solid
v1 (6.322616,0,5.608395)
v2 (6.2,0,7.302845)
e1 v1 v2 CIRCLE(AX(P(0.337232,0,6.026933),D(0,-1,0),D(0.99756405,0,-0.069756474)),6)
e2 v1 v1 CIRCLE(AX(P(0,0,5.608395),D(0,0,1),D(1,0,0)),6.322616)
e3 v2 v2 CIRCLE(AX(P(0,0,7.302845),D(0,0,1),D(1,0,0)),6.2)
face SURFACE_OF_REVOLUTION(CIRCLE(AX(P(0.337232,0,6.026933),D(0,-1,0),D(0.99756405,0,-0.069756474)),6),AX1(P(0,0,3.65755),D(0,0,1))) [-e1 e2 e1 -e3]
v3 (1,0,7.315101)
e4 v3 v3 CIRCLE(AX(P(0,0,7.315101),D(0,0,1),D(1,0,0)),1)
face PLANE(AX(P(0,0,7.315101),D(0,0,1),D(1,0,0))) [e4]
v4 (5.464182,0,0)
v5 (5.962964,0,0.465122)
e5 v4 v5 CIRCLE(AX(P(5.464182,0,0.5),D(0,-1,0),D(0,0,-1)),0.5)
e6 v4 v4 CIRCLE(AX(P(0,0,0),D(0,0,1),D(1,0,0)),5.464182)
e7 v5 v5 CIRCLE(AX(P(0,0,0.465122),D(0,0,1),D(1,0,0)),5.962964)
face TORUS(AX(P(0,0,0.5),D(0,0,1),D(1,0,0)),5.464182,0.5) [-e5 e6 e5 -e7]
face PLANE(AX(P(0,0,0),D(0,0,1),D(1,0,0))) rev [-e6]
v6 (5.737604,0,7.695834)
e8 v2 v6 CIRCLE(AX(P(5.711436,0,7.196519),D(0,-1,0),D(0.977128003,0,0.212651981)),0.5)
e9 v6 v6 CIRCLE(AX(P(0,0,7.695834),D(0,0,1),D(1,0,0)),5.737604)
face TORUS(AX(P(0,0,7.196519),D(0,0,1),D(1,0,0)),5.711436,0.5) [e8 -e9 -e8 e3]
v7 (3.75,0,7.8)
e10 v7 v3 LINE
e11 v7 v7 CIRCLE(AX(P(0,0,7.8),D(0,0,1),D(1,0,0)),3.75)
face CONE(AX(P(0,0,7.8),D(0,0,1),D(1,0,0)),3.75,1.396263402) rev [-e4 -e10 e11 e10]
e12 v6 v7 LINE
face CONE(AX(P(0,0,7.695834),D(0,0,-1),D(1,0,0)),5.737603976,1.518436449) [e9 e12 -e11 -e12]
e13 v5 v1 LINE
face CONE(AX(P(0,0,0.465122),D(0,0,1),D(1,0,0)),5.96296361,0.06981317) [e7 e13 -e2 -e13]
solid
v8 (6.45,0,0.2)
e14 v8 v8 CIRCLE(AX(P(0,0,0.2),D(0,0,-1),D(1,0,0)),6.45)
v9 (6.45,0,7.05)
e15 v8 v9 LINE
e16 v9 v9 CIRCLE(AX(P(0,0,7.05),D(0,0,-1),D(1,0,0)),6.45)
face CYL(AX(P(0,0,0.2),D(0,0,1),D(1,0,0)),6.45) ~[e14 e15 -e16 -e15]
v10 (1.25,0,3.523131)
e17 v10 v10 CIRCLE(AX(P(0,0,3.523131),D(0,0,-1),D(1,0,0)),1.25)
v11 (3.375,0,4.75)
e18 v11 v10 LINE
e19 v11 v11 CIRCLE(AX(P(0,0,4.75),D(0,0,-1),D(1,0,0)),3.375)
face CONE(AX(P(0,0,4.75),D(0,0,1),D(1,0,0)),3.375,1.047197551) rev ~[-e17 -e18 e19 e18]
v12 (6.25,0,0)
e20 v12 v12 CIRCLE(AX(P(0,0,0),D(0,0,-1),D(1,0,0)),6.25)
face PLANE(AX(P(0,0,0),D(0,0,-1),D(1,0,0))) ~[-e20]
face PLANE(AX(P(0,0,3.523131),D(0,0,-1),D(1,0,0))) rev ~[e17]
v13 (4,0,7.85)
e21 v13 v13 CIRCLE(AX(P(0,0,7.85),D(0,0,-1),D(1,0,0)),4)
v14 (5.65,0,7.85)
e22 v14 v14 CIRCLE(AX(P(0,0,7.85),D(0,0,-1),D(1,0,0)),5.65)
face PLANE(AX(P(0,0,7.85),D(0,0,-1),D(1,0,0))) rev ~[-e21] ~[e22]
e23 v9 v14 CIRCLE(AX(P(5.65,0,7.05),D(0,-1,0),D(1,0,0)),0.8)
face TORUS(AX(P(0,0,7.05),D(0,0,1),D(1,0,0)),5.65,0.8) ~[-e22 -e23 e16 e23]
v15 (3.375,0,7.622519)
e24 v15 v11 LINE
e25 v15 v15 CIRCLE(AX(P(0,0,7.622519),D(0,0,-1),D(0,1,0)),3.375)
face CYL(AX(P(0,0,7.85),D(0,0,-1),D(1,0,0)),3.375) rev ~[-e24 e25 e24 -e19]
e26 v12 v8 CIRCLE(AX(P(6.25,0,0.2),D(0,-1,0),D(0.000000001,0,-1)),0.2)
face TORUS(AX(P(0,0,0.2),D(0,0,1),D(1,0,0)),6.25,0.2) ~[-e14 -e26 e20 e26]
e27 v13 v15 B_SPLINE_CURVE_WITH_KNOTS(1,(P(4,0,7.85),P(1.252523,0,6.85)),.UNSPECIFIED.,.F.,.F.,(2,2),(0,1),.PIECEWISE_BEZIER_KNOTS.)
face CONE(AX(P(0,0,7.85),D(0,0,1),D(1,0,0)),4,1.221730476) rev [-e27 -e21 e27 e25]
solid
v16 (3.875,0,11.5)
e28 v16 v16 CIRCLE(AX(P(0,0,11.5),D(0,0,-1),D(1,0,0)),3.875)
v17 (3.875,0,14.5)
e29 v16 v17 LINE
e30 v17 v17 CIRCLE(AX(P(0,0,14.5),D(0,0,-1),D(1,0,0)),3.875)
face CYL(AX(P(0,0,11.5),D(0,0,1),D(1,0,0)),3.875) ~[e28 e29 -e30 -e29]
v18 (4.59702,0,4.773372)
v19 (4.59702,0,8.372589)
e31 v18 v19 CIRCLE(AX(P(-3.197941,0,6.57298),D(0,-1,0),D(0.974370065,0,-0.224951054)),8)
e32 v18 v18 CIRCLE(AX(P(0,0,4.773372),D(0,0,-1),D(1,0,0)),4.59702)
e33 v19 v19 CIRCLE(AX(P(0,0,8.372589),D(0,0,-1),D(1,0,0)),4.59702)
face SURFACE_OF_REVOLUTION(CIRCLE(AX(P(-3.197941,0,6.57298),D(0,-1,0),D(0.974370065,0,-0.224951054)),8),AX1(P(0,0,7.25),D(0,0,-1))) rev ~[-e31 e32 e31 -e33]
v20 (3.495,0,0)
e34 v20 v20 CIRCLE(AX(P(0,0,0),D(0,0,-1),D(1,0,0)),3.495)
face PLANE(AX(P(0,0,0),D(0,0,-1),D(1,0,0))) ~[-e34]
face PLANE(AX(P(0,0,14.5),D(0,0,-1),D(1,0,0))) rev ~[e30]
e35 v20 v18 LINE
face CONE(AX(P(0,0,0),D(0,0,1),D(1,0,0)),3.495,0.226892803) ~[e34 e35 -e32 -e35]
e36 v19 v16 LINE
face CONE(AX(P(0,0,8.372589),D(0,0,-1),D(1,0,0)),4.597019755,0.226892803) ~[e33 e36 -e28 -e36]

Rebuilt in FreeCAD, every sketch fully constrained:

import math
import FreeCAD as App
import Part
import Sketcher
Q = App.Units.Quantity

doc = App.newDocument("Part")
body = doc.addObject("PartDesign::Body", "Body")

sketch1 = body.newObject("Sketcher::SketchObject", "Sketch")
sketch1.AttachmentSupport = (doc.getObject("XZ_Plane"), [""])
sketch1.MapMode = "FlatFace"
sketch1.addGeometry(Part.LineSegment(App.Vector(5.65, 7.85, 0), App.Vector(3.375, 7.85, 0)), False)
sketch1.addGeometry(Part.LineSegment(App.Vector(3.375, 7.85, 0), App.Vector(3.375, 4.75, 0)), False)
sketch1.addGeometry(Part.LineSegment(App.Vector(3.375, 4.75, 0), App.Vector(1.25, 3.523131, 0)), False)
sketch1.addGeometry(Part.LineSegment(App.Vector(1.25, 3.523131, 0), App.Vector(0, 3.523131, 0)), False)
sketch1.addGeometry(Part.LineSegment(App.Vector(0, 3.523131, 0), App.Vector(0, 0, 0)), False)
sketch1.addGeometry(Part.LineSegment(App.Vector(0, 0, 0), App.Vector(6.25, 0, 0)), False)
sketch1.addGeometry(Part.ArcOfCircle(Part.Circle(App.Vector(6.25, 0.2, 0), App.Vector(0, 0, 1), 0.2), math.radians(-90), math.radians(0)), False)
sketch1.addGeometry(Part.LineSegment(App.Vector(6.45, 0.2, 0), App.Vector(6.45, 7.05, 0)), False)
sketch1.addGeometry(Part.ArcOfCircle(Part.Circle(App.Vector(5.65, 7.05, 0), App.Vector(0, 0, 1), 0.8), math.radians(0), math.radians(90)), False)
sketch1.addConstraint(Sketcher.Constraint("Coincident", 0, 2, 1, 1))
sketch1.addConstraint(Sketcher.Constraint("Coincident", 1, 2, 2, 1))
sketch1.addConstraint(Sketcher.Constraint("Coincident", 2, 2, 3, 1))
sketch1.addConstraint(Sketcher.Constraint("Coincident", 3, 2, 4, 1))
sketch1.addConstraint(Sketcher.Constraint("Coincident", 4, 2, 5, 1))
sketch1.addConstraint(Sketcher.Constraint("Tangent", 5, 2, 6, 1))
sketch1.addConstraint(Sketcher.Constraint("Tangent", 6, 2, 7, 1))
sketch1.addConstraint(Sketcher.Constraint("Tangent", 7, 2, 8, 1))
sketch1.addConstraint(Sketcher.Constraint("Tangent", 8, 2, 0, 1))
sketch1.addConstraint(Sketcher.Constraint("Horizontal", 0))
sketch1.addConstraint(Sketcher.Constraint("Vertical", 1))
sketch1.addConstraint(Sketcher.Constraint("Horizontal", 3))
sketch1.addConstraint(Sketcher.Constraint("Vertical", 4))
sketch1.addConstraint(Sketcher.Constraint("Horizontal", 5))
sketch1.addConstraint(Sketcher.Constraint("Vertical", 7))
sketch1.addConstraint(Sketcher.Constraint("Coincident", 4, 2, -1, 1))
sketch1.addConstraint(Sketcher.Constraint("Radius", 6, 0.2))
sketch1.addConstraint(Sketcher.Constraint("Radius", 8, 0.8))
sketch1.addConstraint(Sketcher.Constraint("Angle", 2, Q("-150 deg")))
sketch1.addConstraint(Sketcher.Constraint("DistanceY", 1, 2, 1, 1, 3.1))
sketch1.addConstraint(Sketcher.Constraint("DistanceX", 2, 2, 6, 3, 5.0))
sketch1.addConstraint(Sketcher.Constraint("DistanceX", 3, 2, 3, 1, 1.25))
sketch1.addConstraint(Sketcher.Constraint("DistanceY", 7, 1, 7, 2, 6.85))
sketch1.addConstraint(Sketcher.Constraint("DistanceX", 0, 2, 0, 1, 2.275))
revolution = body.newObject("PartDesign::Revolution", "Revolution")
revolution.Profile = sketch1
revolution.ReferenceAxis = (sketch1, ["V_Axis"])
revolution.Angle = 360

sketch2 = body.newObject("Sketcher::SketchObject", "Sketch001")
sketch2.AttachmentSupport = (doc.getObject("XY_Plane"), [""])
sketch2.MapMode = "FlatFace"
sketch2.AttachmentOffset = App.Placement(App.Vector(0, 0, 7.85), App.Rotation())
sketch2.addGeometry(Part.Circle(App.Vector(0, 0, 0), App.Vector(0, 0, 1), 4), False)
sketch2.addConstraint(Sketcher.Constraint("Coincident", 0, 3, -1, 1))
sketch2.addConstraint(Sketcher.Constraint("Diameter", 0, 8.0))
pocket1 = body.newObject("PartDesign::Pocket", "Pocket")
pocket1.Profile = sketch2
pocket1.Length = 1
pocket1.TaperAngle = -70
body2 = doc.addObject("PartDesign::Body", "Body001")

sketch3 = body2.newObject("Sketcher::SketchObject", "Sketch002")
sketch3.AttachmentSupport = (doc.getObject("XZ_Plane001"), [""])
sketch3.MapMode = "FlatFace"
sketch3.addGeometry(Part.LineSegment(App.Vector(3.875, 14.5, 0), App.Vector(0, 14.5, 0)), False)
sketch3.addGeometry(Part.LineSegment(App.Vector(0, 14.5, 0), App.Vector(0, 0, 0)), False)
sketch3.addGeometry(Part.LineSegment(App.Vector(0, 0, 0), App.Vector(3.495, 0, 0)), False)
sketch3.addGeometry(Part.LineSegment(App.Vector(3.495, 0, 0), App.Vector(4.59702, 4.773372, 0)), False)
sketch3.addGeometry(Part.ArcOfCircle(Part.Circle(App.Vector(-3.197941, 6.57298, 0), App.Vector(0, 0, 1), 8), math.radians(-13), math.radians(13)), False)
sketch3.addGeometry(Part.LineSegment(App.Vector(4.59702, 8.372589, 0), App.Vector(3.875, 11.5, 0)), False)
sketch3.addGeometry(Part.LineSegment(App.Vector(3.875, 11.5, 0), App.Vector(3.875, 14.5, 0)), False)
sketch3.addConstraint(Sketcher.Constraint("Coincident", 0, 2, 1, 1))
sketch3.addConstraint(Sketcher.Constraint("Coincident", 1, 2, 2, 1))
sketch3.addConstraint(Sketcher.Constraint("Coincident", 2, 2, 3, 1))
sketch3.addConstraint(Sketcher.Constraint("Tangent", 3, 2, 4, 1))
sketch3.addConstraint(Sketcher.Constraint("Tangent", 4, 2, 5, 1))
sketch3.addConstraint(Sketcher.Constraint("Coincident", 5, 2, 6, 1))
sketch3.addConstraint(Sketcher.Constraint("Coincident", 6, 2, 0, 1))
sketch3.addConstraint(Sketcher.Constraint("Horizontal", 0))
sketch3.addConstraint(Sketcher.Constraint("Vertical", 1))
sketch3.addConstraint(Sketcher.Constraint("Horizontal", 2))
sketch3.addConstraint(Sketcher.Constraint("Vertical", 6))
sketch3.addConstraint(Sketcher.Constraint("Coincident", 1, 2, -1, 1))
sketch3.addConstraint(Sketcher.Constraint("Vertical", 3, 2, 4, 2))
sketch3.addConstraint(Sketcher.Constraint("Radius", 4, 8.0))
sketch3.addConstraint(Sketcher.Constraint("DistanceY", 6, 1, 6, 2, 3.0))
sketch3.addConstraint(Sketcher.Constraint("Angle", 3, Q("77 deg")))
sketch3.addConstraint(Sketcher.Constraint("DistanceY", 1, 2, 1, 1, 14.5))
sketch3.addConstraint(Sketcher.Constraint("DistanceX", 0, 2, 0, 1, 3.875))
sketch3.addConstraint(Sketcher.Constraint("DistanceX", 2, 1, 2, 2, 3.495))
revolution2 = body2.newObject("PartDesign::Revolution", "Revolution001")
revolution2.Profile = sketch3
revolution2.ReferenceAxis = (sketch3, ["V_Axis"])
revolution2.Angle = 360
body3 = doc.addObject("PartDesign::Body", "Body002")

sketch4 = body3.newObject("Sketcher::SketchObject", "Sketch003")
sketch4.AttachmentSupport = (doc.getObject("XZ_Plane002"), [""])
sketch4.MapMode = "FlatFace"
sketch4.addGeometry(Part.LineSegment(App.Vector(0, 7.315101, 0), App.Vector(0, 0, 0)), False)
sketch4.addGeometry(Part.LineSegment(App.Vector(0, 0, 0), App.Vector(5.464182, 0, 0)), False)
sketch4.addGeometry(Part.ArcOfCircle(Part.Circle(App.Vector(5.464182, 0.5, 0), App.Vector(0, 0, 1), 0.5), math.radians(-90), math.radians(-4)), False)
sketch4.addGeometry(Part.LineSegment(App.Vector(5.962964, 0.465122, 0), App.Vector(6.322616, 5.608395, 0)), False)
sketch4.addGeometry(Part.ArcOfCircle(Part.Circle(App.Vector(0.337232, 6.026933, 0), App.Vector(0, 0, 1), 6), math.radians(-4), math.radians(12.277811)), False)
sketch4.addGeometry(Part.ArcOfCircle(Part.Circle(App.Vector(5.711436, 7.196519, 0), App.Vector(0, 0, 1), 0.5), math.radians(12.277811), math.radians(87)), False)
sketch4.addGeometry(Part.LineSegment(App.Vector(5.737604, 7.695834, 0), App.Vector(3.75, 7.8, 0)), False)
sketch4.addGeometry(Part.LineSegment(App.Vector(3.75, 7.8, 0), App.Vector(1, 7.315101, 0)), False)
sketch4.addGeometry(Part.LineSegment(App.Vector(1, 7.315101, 0), App.Vector(0, 7.315101, 0)), False)
sketch4.addConstraint(Sketcher.Constraint("Coincident", 0, 2, 1, 1))
sketch4.addConstraint(Sketcher.Constraint("Tangent", 1, 2, 2, 1))
sketch4.addConstraint(Sketcher.Constraint("Tangent", 2, 2, 3, 1))
sketch4.addConstraint(Sketcher.Constraint("Tangent", 3, 2, 4, 1))
sketch4.addConstraint(Sketcher.Constraint("Tangent", 4, 2, 5, 1))
sketch4.addConstraint(Sketcher.Constraint("Tangent", 5, 2, 6, 1))
sketch4.addConstraint(Sketcher.Constraint("Coincident", 6, 2, 7, 1))
sketch4.addConstraint(Sketcher.Constraint("Coincident", 7, 2, 8, 1))
sketch4.addConstraint(Sketcher.Constraint("Coincident", 8, 2, 0, 1))
sketch4.addConstraint(Sketcher.Constraint("Vertical", 0))
sketch4.addConstraint(Sketcher.Constraint("Horizontal", 1))
sketch4.addConstraint(Sketcher.Constraint("Horizontal", 8))
sketch4.addConstraint(Sketcher.Constraint("Coincident", 0, 2, -1, 1))
sketch4.addConstraint(Sketcher.Constraint("Equal", 2, 5))
sketch4.addConstraint(Sketcher.Constraint("Radius", 4, 6.0))
sketch4.addConstraint(Sketcher.Constraint("Radius", 2, 0.5))
sketch4.addConstraint(Sketcher.Constraint("DistanceX", 8, 2, 8, 1, 1.0))
sketch4.addConstraint(Sketcher.Constraint("Angle", 3, Q("86 deg")))
sketch4.addConstraint(Sketcher.Constraint("Angle", 6, Q("177 deg")))
sketch4.addConstraint(Sketcher.Constraint("Angle", 7, Q("-170 deg")))
sketch4.addConstraint(Sketcher.Constraint("DistanceX", -1, 1, 4, 2, 6.2))
sketch4.addConstraint(Sketcher.Constraint("DistanceY", -1, 1, 6, 2, 7.8))
sketch4.addConstraint(Sketcher.Constraint("DistanceX", -1, 1, 6, 2, 3.75))
sketch4.addConstraint(Sketcher.Constraint("DistanceX", 1, 1, 1, 2, 5.464182))
revolution3 = body3.newObject("PartDesign::Revolution", "Revolution002")
revolution3.Profile = sketch4
revolution3.ReferenceAxis = (sketch4, ["V_Axis"])
revolution3.Angle = 360

doc.recompute()
